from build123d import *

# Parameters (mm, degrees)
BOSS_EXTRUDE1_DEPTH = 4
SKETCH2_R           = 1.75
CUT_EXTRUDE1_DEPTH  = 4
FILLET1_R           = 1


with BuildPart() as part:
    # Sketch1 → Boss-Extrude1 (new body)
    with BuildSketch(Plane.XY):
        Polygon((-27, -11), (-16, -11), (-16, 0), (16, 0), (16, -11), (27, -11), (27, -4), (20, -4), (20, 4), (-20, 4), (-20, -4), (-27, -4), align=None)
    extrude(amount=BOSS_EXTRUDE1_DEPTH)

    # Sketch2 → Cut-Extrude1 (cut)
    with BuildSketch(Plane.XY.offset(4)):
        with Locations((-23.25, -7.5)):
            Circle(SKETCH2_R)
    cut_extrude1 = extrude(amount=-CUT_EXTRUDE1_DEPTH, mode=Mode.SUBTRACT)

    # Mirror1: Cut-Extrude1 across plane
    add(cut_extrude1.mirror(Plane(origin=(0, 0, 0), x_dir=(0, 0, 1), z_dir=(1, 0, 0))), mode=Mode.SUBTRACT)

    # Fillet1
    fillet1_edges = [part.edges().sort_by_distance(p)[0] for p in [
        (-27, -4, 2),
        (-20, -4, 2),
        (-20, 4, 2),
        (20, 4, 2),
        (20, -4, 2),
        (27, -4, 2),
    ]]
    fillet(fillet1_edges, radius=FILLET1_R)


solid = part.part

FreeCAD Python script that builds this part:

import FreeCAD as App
import Part
import Sketcher
from FreeCAD import Vector


def edges_at(feature, points):
    """Names of the edges that pass closest to the given points."""
    edges = feature.Shape.Edges
    near = lambda p: min(range(len(edges)), key=lambda i: edges[i].distToShape(Part.Vertex(*p))[0])
    return sorted({f"Edge{near(p) + 1}" for p in points})


def add_polygon(sketch, points):
    """Adds a closed chain of lines whose ends are joined by coincident constraints."""
    first, n = sketch.GeometryCount, len(points)
    for a, b in zip(points, points[1:] + points[:1]):
        sketch.addGeometry(Part.LineSegment(App.Vector(*a, 0), App.Vector(*b, 0)), False)
    for i in range(n):
        sketch.addConstraint(Sketcher.Constraint("Coincident", first + i, 2, first + (i + 1) % n, 1))

doc = App.newDocument("Part")
params = doc.addObject("Spreadsheet::Sheet", "Params")
for row, (alias, value) in enumerate([
    ("sketch1_width", "11 mm"),
    ("sketch1_width2", "32 mm"),
    ("sketch1_width3", "7 mm"),
    ("pad1_length", "4 mm"),
    ("sketch2_diameter", "3.5 mm"),
    ("pocket1_length", "4 mm"),
    ("fillet_radius", "1 mm"),
], start=1):
    params.set(f"A{row}", alias)
    params.set(f"B{row}", "=" + value)
    params.setAlias(f"B{row}", alias)

body = doc.addObject("PartDesign::Body", "Body")

# Sketch on XY plane
sketch1 = body.newObject("Sketcher::SketchObject", "Sketch")
sketch1.AttachmentSupport = (doc.getObject("XY_Plane"), [""])
sketch1.MapMode = "FlatFace"
add_polygon(sketch1, [(-27, -11), (-16, -11), (-16, 0), (16, 0), (16, -11), (27, -11), (27, -4), (20, -4), (20, 4), (-20, 4), (-20, -4), (-27, -4)])  # lines 0-11
sketch1.addConstraint(Sketcher.Constraint("Horizontal", 0))
sketch1.addConstraint(Sketcher.Constraint("Vertical", 1))
sketch1.addConstraint(Sketcher.Constraint("Horizontal", 2))
sketch1.addConstraint(Sketcher.Constraint("Vertical", 3))
sketch1.addConstraint(Sketcher.Constraint("Horizontal", 4))
sketch1.addConstraint(Sketcher.Constraint("Vertical", 5))
sketch1.addConstraint(Sketcher.Constraint("Horizontal", 6))
sketch1.addConstraint(Sketcher.Constraint("Vertical", 7))
sketch1.addConstraint(Sketcher.Constraint("Horizontal", 8))
sketch1.addConstraint(Sketcher.Constraint("Vertical", 9))
sketch1.addConstraint(Sketcher.Constraint("Horizontal", 10))
sketch1.addConstraint(Sketcher.Constraint("Vertical", 11))
sketch1.addConstraint(Sketcher.Constraint("Symmetric", 1, 2, 2, 2, -1, 1))
sketch1.addConstraint(Sketcher.Constraint("Symmetric", 6, 2, 8, 2, -1, 1))
sketch1.addConstraint(Sketcher.Constraint("Symmetric", 5, 2, 10, 2, -2))
sketch1.addConstraint(Sketcher.Constraint("Horizontal", 0, 2, 3, 2))
sketch1.addConstraint(Sketcher.Constraint("Equal", 4, 1))
sketch1.addConstraint(Sketcher.Constraint("Equal", 10, 5))
sketch1.addConstraint(Sketcher.Constraint("DistanceX", 0, 1, 0, 2, 11.0))
sketch1.addConstraint(Sketcher.Constraint("DistanceX", 2, 1, 2, 2, 32.0))
sketch1.addConstraint(Sketcher.Constraint("DistanceX", 6, 2, 6, 1, 7.0))
sketch1.setExpression("Constraints[30]", "Params.sketch1_width")
sketch1.setExpression("Constraints[31]", "Params.sketch1_width2")
sketch1.setExpression("Constraints[32]", "Params.sketch1_width3")
pad1 = body.newObject("PartDesign::Pad", "Pad")
pad1.Profile = sketch1
pad1.setExpression("Length", "Params.pad1_length")

# Sketch on XY plane
sketch2 = body.newObject("Sketcher::SketchObject", "Sketch001")
sketch2.AttachmentSupport = (doc.getObject("XY_Plane"), [""])
sketch2.MapMode = "FlatFace"
sketch2.AttachmentOffset = App.Placement(Vector(0, 0, 4), App.Rotation())
sketch2.addGeometry(Part.Circle(Vector(-23.2, -7.5, 0), Vector(0, 0, 1), 1.8), False)
sketch2.addConstraint(Sketcher.Constraint("Diameter", 0, 3.5))
sketch2.addConstraint(Sketcher.Constraint("DistanceY", 0, 3, -1, 1, 7.5))
sketch2.addConstraint(Sketcher.Constraint("DistanceX", 0, 3, -1, 1, 23.25))
sketch2.setExpression("Constraints[0]", "Params.sketch2_diameter")
pocket1 = body.newObject("PartDesign::Pocket", "Pocket")
pocket1.Profile = sketch2
pocket1.setExpression("Length", "Params.pocket1_length")
doc.recompute()

mirrored = body.newObject("PartDesign::Mirrored", "Mirrored")
mirrored.Originals = [pocket1]
mirrored.MirrorPlane = (doc.getObject("YZ_Plane"), [""])
body.Tip = mirrored
doc.recompute()

fillet = body.newObject("PartDesign::Fillet", "Fillet")
fillet.Base = (mirrored, edges_at(mirrored, [
    (-27, -4, 2),
    (-20, -4, 2),
    (-20, 4, 2),
    (20, 4, 2),
    (20, -4, 2),
    (27, -4, 2),
]))
fillet.setExpression("Radius", "Params.fillet_radius")

doc.recompute()
